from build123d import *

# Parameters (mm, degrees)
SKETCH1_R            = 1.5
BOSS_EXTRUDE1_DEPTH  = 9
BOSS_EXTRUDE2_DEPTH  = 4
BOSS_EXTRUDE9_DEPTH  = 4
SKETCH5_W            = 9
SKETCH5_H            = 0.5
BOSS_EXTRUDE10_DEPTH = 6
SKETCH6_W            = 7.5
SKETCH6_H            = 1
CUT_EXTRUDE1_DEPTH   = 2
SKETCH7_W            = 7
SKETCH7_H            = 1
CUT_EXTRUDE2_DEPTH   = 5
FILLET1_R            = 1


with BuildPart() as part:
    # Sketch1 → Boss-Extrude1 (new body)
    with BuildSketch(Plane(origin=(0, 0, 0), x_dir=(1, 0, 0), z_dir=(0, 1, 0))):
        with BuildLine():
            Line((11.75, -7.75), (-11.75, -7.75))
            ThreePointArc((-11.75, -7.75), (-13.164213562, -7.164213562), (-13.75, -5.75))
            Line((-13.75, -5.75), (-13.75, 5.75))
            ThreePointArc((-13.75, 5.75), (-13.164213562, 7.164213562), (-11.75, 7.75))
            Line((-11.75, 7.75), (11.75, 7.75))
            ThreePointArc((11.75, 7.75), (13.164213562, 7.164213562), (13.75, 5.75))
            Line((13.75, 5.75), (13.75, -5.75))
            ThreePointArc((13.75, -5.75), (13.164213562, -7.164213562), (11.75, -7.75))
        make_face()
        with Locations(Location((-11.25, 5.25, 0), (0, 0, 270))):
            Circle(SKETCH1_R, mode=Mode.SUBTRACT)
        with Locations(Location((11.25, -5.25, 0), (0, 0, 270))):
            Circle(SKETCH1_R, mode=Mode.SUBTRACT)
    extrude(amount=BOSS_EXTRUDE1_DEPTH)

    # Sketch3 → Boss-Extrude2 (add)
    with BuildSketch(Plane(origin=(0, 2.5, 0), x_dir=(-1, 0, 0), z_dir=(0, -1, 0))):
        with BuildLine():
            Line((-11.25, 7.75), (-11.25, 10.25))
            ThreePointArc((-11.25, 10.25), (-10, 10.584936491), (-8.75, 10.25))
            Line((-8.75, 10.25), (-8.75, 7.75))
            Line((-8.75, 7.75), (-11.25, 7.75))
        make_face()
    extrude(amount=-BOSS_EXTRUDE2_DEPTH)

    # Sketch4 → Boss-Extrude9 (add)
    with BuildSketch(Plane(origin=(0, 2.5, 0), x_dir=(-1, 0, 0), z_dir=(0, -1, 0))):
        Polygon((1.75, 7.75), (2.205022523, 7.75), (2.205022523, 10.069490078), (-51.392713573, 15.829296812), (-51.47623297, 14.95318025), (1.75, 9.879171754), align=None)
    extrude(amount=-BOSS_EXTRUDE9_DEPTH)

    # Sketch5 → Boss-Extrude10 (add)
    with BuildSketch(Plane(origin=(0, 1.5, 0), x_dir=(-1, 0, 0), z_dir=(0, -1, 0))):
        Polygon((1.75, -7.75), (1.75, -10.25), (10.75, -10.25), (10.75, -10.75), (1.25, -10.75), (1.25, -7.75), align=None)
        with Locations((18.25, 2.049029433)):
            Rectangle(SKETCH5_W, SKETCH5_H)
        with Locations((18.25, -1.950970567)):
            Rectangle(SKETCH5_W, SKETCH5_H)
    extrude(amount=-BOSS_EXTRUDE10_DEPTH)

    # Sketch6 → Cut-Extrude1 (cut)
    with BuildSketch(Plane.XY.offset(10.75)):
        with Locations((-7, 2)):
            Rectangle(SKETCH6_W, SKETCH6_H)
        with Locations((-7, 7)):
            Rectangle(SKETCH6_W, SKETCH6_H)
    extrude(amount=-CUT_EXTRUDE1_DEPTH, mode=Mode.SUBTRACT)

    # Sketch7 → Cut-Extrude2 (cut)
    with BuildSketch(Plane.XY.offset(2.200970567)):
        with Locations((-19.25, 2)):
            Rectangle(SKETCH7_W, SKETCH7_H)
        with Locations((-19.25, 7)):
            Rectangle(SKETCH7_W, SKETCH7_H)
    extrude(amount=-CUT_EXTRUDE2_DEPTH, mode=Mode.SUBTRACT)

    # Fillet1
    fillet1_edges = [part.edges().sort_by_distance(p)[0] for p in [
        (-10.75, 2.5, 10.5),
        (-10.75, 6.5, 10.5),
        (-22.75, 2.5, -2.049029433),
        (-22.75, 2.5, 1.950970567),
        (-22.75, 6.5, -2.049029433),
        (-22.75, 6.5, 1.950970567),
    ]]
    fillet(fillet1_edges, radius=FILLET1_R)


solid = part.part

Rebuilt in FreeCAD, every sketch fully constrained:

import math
import FreeCAD as App
import Part
import Sketcher
Q = App.Units.Quantity


def edges_at(feature, points):
    """Names of the edges that pass closest to the given points."""
    edges = feature.Shape.Edges
    near = lambda p: min(range(len(edges)), key=lambda i: edges[i].distToShape(Part.Vertex(*p))[0])
    return sorted({f"Edge{near(p) + 1}" for p in points})


def add_polygon(sketch, points):
    """Adds a closed chain of lines whose ends are joined by coincident constraints."""
    first, n = sketch.GeometryCount, len(points)
    for a, b in zip(points, points[1:] + points[:1]):
        sketch.addGeometry(Part.LineSegment(App.Vector(*a, 0), App.Vector(*b, 0)), False)
    for i in range(n):
        sketch.addConstraint(Sketcher.Constraint("Coincident", first + i, 2, first + (i + 1) % n, 1))

doc = App.newDocument("Part")
body = doc.addObject("PartDesign::Body", "Body")

# Sketch on XZ plane
sketch1 = doc.addObject("Sketcher::SketchObject", "Sketch")
body.addObject(sketch1)
sketch1.AttachmentSupport = (doc.XZ_Plane, [""])
sketch1.MapMode = "FlatFace"
sketch1.addGeometry(Part.LineSegment(App.Vector(-11.75, 7.75, 0), App.Vector(11.75, 7.75, 0)), False)
sketch1.addGeometry(Part.ArcOfCircle(Part.Circle(App.Vector(11.75, 5.75, 0), App.Vector(0, 0, 1), 2), math.radians(0), math.radians(90)), False)
sketch1.addGeometry(Part.LineSegment(App.Vector(13.75, 5.75, 0), App.Vector(13.75, -5.75, 0)), False)
sketch1.addGeometry(Part.ArcOfCircle(Part.Circle(App.Vector(11.75, -5.75, 0), App.Vector(0, 0, 1), 2), math.radians(-90), math.radians(0)), False)
sketch1.addGeometry(Part.LineSegment(App.Vector(11.75, -7.75, 0), App.Vector(-11.75, -7.75, 0)), False)
sketch1.addGeometry(Part.ArcOfCircle(Part.Circle(App.Vector(-11.75, -5.75, 0), App.Vector(0, 0, 1), 2), math.radians(-180), math.radians(-90)), False)
sketch1.addGeometry(Part.LineSegment(App.Vector(-13.75, -5.75, 0), App.Vector(-13.75, 5.75, 0)), False)
sketch1.addGeometry(Part.ArcOfCircle(Part.Circle(App.Vector(-11.75, 5.75, 0), App.Vector(0, 0, 1), 2), math.radians(90), math.radians(180)), False)
sketch1.addGeometry(Part.Circle(App.Vector(11.25, 5.25, 0), App.Vector(0, 0, 1), 1.5), False)
sketch1.addGeometry(Part.Circle(App.Vector(-11.25, -5.25, 0), App.Vector(0, 0, 1), 1.5), False)
sketch1.addConstraint(Sketcher.Constraint("Tangent", 0, 2, 1, 2))
sketch1.addConstraint(Sketcher.Constraint("Tangent", 1, 1, 2, 1))
sketch1.addConstraint(Sketcher.Constraint("Tangent", 2, 2, 3, 2))
sketch1.addConstraint(Sketcher.Constraint("Tangent", 3, 1, 4, 1))
sketch1.addConstraint(Sketcher.Constraint("Tangent", 4, 2, 5, 2))
sketch1.addConstraint(Sketcher.Constraint("Tangent", 5, 1, 6, 1))
sketch1.addConstraint(Sketcher.Constraint("Tangent", 6, 2, 7, 2))
sketch1.addConstraint(Sketcher.Constraint("Tangent", 7, 1, 0, 1))
sketch1.addConstraint(Sketcher.Constraint("Horizontal", 0))
sketch1.addConstraint(Sketcher.Constraint("Vertical", 2))
sketch1.addConstraint(Sketcher.Constraint("Horizontal", 4))
sketch1.addConstraint(Sketcher.Constraint("Vertical", 6))
sketch1.addConstraint(Sketcher.Constraint("Equal", 1, 3))
sketch1.addConstraint(Sketcher.Constraint("Equal", 3, 5))
sketch1.addConstraint(Sketcher.Constraint("Equal", 5, 7))
sketch1.addConstraint(Sketcher.Constraint("Equal", 8, 9))
sketch1.addConstraint(Sketcher.Constraint("Symmetric", 1, 3, 5, 3, -1, 1))
sketch1.addConstraint(Sketcher.Constraint("Symmetric", 8, 3, 9, 3, -1, 1))
sketch1.addConstraint(Sketcher.Constraint("Diameter", 8, Q("3 mm")))
sketch1.addConstraint(Sketcher.Constraint("Radius", 1, Q("2 mm")))
sketch1.addConstraint(Sketcher.Constraint("DistanceX", 0, 1, 0, 2, Q("23.5 mm")))
sketch1.addConstraint(Sketcher.Constraint("DistanceY", 2, 2, 2, 1, Q("11.5 mm")))
sketch1.addConstraint(Sketcher.Constraint("DistanceY", 3, 3, 8, 3, Q("11 mm")))
sketch1.addConstraint(Sketcher.Constraint("DistanceX", 7, 3, 8, 3, Q("23 mm")))
pad1 = doc.addObject("PartDesign::Pad", "Pad")
body.addObject(pad1)
pad1.Profile = sketch1
pad1.Length = 9
pad1.Reversed = True

# Sketch on XZ plane
sketch2 = doc.addObject("Sketcher::SketchObject", "Sketch001")
body.addObject(sketch2)
sketch2.AttachmentSupport = (doc.XZ_Plane, [""])
sketch2.MapMode = "FlatFace"
sketch2.AttachmentOffset = App.Placement(App.Vector(0, 0, -2.5), App.Rotation())
sketch2.addGeometry(Part.LineSegment(App.Vector(11.25, -10.25, 0), App.Vector(11.25, -7.75, 0)), False)
sketch2.addGeometry(Part.LineSegment(App.Vector(11.25, -7.75, 0), App.Vector(8.75, -7.75, 0)), False)
sketch2.addGeometry(Part.LineSegment(App.Vector(8.75, -7.75, 0), App.Vector(8.75, -10.25, 0)), False)
sketch2.addGeometry(Part.ArcOfCircle(Part.Circle(App.Vector(10, -8.084936, 0), App.Vector(0, 0, 1), 2.5), math.radians(-120), math.radians(-60)), False)
sketch2.addConstraint(Sketcher.Constraint("Coincident", 0, 2, 1, 1))
sketch2.addConstraint(Sketcher.Constraint("Coincident", 1, 2, 2, 1))
sketch2.addConstraint(Sketcher.Constraint("Coincident", 2, 2, 3, 1))
sketch2.addConstraint(Sketcher.Constraint("Coincident", 3, 2, 0, 1))
sketch2.addConstraint(Sketcher.Constraint("Vertical", 0))
sketch2.addConstraint(Sketcher.Constraint("Horizontal", 1))
sketch2.addConstraint(Sketcher.Constraint("Vertical", 2))
sketch2.addConstraint(Sketcher.Constraint("Horizontal", 2, 2, 3, 2))
sketch2.addConstraint(Sketcher.Constraint("Equal", 1, 0))
sketch2.addConstraint(Sketcher.Constraint("Radius", 3, Q("2.5 mm")))
sketch2.addConstraint(Sketcher.Constraint("DistanceX", 1, 2, 1, 1, Q("2.5 mm")))
sketch2.addConstraint(Sketcher.Constraint("DistanceX", -1, 1, 3, 3, Q("10 mm")))
sketch2.addConstraint(Sketcher.Constraint("DistanceY", 0, 2, -1, 1, Q("7.75 mm")))
pad2 = doc.addObject("PartDesign::Pad", "Pad001")
body.addObject(pad2)
pad2.Profile = sketch2
pad2.Length = 4
pad2.Reversed = True

# Sketch on XZ plane
sketch3 = doc.addObject("Sketcher::SketchObject", "Sketch002")
body.addObject(sketch3)
sketch3.AttachmentSupport = (doc.XZ_Plane, [""])
sketch3.MapMode = "FlatFace"
sketch3.AttachmentOffset = App.Placement(App.Vector(0, 0, -2.5), App.Rotation())
add_polygon(sketch3, [(-1.75, -7.75), (-2.205023, -7.75), (-2.205023, -10.06949), (51.392714, -15.829297), (51.476233, -14.95318), (-1.75, -9.879172)])  # lines 0-5
sketch3.addConstraint(Sketcher.Constraint("Horizontal", 0))
sketch3.addConstraint(Sketcher.Constraint("Vertical", 1))
sketch3.addConstraint(Sketcher.Constraint("Vertical", 5))
sketch3.addConstraint(Sketcher.Constraint("Perpendicular", 3, 4))
sketch3.addConstraint(Sketcher.Constraint("DistanceY", 0, 2, -1, 1, Q("7.75 mm")))
sketch3.addConstraint(Sketcher.Constraint("DistanceX", 4, 2, -1, 1, Q("1.75 mm")))
sketch3.addConstraint(Sketcher.Constraint("DistanceY", 1, 2, 1, 1, Q("2.31949 mm")))
sketch3.addConstraint(Sketcher.Constraint("DistanceY", 5, 1, 5, 2, Q("2.129172 mm")))
sketch3.addConstraint(Sketcher.Constraint("Distance", 3, Q("0.880088 mm")))
sketch3.addConstraint(Sketcher.Constraint("DistanceX", 0, 2, 0, 1, Q("0.455023 mm")))
sketch3.addConstraint(Sketcher.Constraint("DistanceY", 3, 2, -1, 1, Q("14.95318 mm")))
sketch3.addConstraint(Sketcher.Constraint("Distance", 2, Q("53.906333 mm")))
pad3 = doc.addObject("PartDesign::Pad", "Pad002")
body.addObject(pad3)
pad3.Profile = sketch3
pad3.Length = 4
pad3.Reversed = True

# Sketch on XZ plane
sketch4 = doc.addObject("Sketcher::SketchObject", "Sketch003")
body.addObject(sketch4)
sketch4.AttachmentSupport = (doc.XZ_Plane, [""])
sketch4.MapMode = "FlatFace"
sketch4.AttachmentOffset = App.Placement(App.Vector(0, 0, -1.5), App.Rotation())
add_polygon(sketch4, [(-1.75, 10.25), (-1.75, 7.75), (-1.25, 7.75), (-1.25, 10.75), (-10.75, 10.75), (-10.75, 10.25)])  # lines 0-5
add_polygon(sketch4, [(-13.75, -2.299029), (-13.75, -1.799029), (-22.75, -1.799029), (-22.75, -2.299029)])  # lines 6-9
add_polygon(sketch4, [(-13.75, 1.700971), (-13.75, 2.200971), (-22.75, 2.200971), (-22.75, 1.700971)])  # lines 10-13
sketch4.addConstraint(Sketcher.Constraint("Vertical", 0))
sketch4.addConstraint(Sketcher.Constraint("Horizontal", 1))
sketch4.addConstraint(Sketcher.Constraint("Vertical", 2))
sketch4.addConstraint(Sketcher.Constraint("Horizontal", 3))
sketch4.addConstraint(Sketcher.Constraint("Vertical", 4))
sketch4.addConstraint(Sketcher.Constraint("Horizontal", 5))
sketch4.addConstraint(Sketcher.Constraint("Vertical", 6))
sketch4.addConstraint(Sketcher.Constraint("Horizontal", 7))
sketch4.addConstraint(Sketcher.Constraint("Vertical", 8))
sketch4.addConstraint(Sketcher.Constraint("Horizontal", 9))
sketch4.addConstraint(Sketcher.Constraint("Vertical", 10))
sketch4.addConstraint(Sketcher.Constraint("Horizontal", 11))
sketch4.addConstraint(Sketcher.Constraint("Vertical", 12))
sketch4.addConstraint(Sketcher.Constraint("Horizontal", 13))
sketch4.addConstraint(Sketcher.Constraint("Vertical", 9, 2, 10, 2))
sketch4.addConstraint(Sketcher.Constraint("Vertical", 8, 2, 11, 2))
sketch4.addConstraint(Sketcher.Constraint("Equal", 5, 7))
sketch4.addConstraint(Sketcher.Constraint("Equal", 1, 4))
sketch4.addConstraint(Sketcher.Constraint("Equal", 4, 6))
sketch4.addConstraint(Sketcher.Constraint("Equal", 8, 10))
sketch4.addConstraint(Sketcher.Constraint("DistanceX", 5, 1, 5, 2, Q("9 mm")))
sketch4.addConstraint(Sketcher.Constraint("DistanceY", 2, 1, 2, 2, Q("3 mm")))
sketch4.addConstraint(Sketcher.Constraint("DistanceX", 1, 1, 1, 2, Q("0.5 mm")))
sketch4.addConstraint(Sketcher.Constraint("DistanceX", 6, 2, 4, 2, Q("3 mm")))
sketch4.addConstraint(Sketcher.Constraint("DistanceY", 6, 2, 10, 2, Q("4 mm")))
sketch4.addConstraint(Sketcher.Constraint("DistanceX", 0, 2, -1, 1, Q("1.75 mm")))
sketch4.addConstraint(Sketcher.Constraint("DistanceY", -1, 1, 0, 2, Q("7.75 mm")))
sketch4.addConstraint(Sketcher.Constraint("DistanceY", 6, 2, -1, 1, Q("1.799029 mm")))
pad4 = doc.addObject("PartDesign::Pad", "Pad003")
body.addObject(pad4)
pad4.Profile = sketch4
pad4.Length = 6
pad4.Reversed = True

# Sketch on XY plane
sketch5 = doc.addObject("Sketcher::SketchObject", "Sketch004")
body.addObject(sketch5)
sketch5.AttachmentSupport = (doc.XY_Plane, [""])
sketch5.MapMode = "FlatFace"
sketch5.AttachmentOffset = App.Placement(App.Vector(0, 0, 10.75), App.Rotation())
add_polygon(sketch5, [(-10.75, 2.5), (-10.75, 1.5), (-3.25, 1.5), (-3.25, 2.5)])  # lines 0-3
add_polygon(sketch5, [(-10.75, 7.5), (-10.75, 6.5), (-3.25, 6.5), (-3.25, 7.5)])  # lines 4-7
sketch5.addConstraint(Sketcher.Constraint("Vertical", 0))
sketch5.addConstraint(Sketcher.Constraint("Horizontal", 1))
sketch5.addConstraint(Sketcher.Constraint("Vertical", 2))
sketch5.addConstraint(Sketcher.Constraint("Horizontal", 3))
sketch5.addConstraint(Sketcher.Constraint("Vertical", 4))
sketch5.addConstraint(Sketcher.Constraint("Horizontal", 5))
sketch5.addConstraint(Sketcher.Constraint("Vertical", 6))
sketch5.addConstraint(Sketcher.Constraint("Horizontal", 7))
sketch5.addConstraint(Sketcher.Constraint("Vertical", 3, 2, 4, 2))
sketch5.addConstraint(Sketcher.Constraint("Vertical", 2, 2, 5, 2))
sketch5.addConstraint(Sketcher.Constraint("Equal", 2, 4))
sketch5.addConstraint(Sketcher.Constraint("DistanceY", 0, 2, 0, 1, Q("1 mm")))
sketch5.addConstraint(Sketcher.Constraint("DistanceX", 1, 1, 1, 2, Q("7.5 mm")))
sketch5.addConstraint(Sketcher.Constraint("DistanceY", 3, 2, 4, 2, Q("4 mm")))
sketch5.addConstraint(Sketcher.Constraint("DistanceY", -1, 1, 0, 2, Q("1.5 mm")))
sketch5.addConstraint(Sketcher.Constraint("DistanceX", 0, 2, -1, 1, Q("10.75 mm")))
pocket1 = doc.addObject("PartDesign::Pocket", "Pocket")
body.addObject(pocket1)
pocket1.Profile = sketch5
pocket1.Length = 2

# Sketch on XY plane
sketch6 = doc.addObject("Sketcher::SketchObject", "Sketch005")
body.addObject(sketch6)
sketch6.AttachmentSupport = (doc.XY_Plane, [""])
sketch6.MapMode = "FlatFace"
sketch6.AttachmentOffset = App.Placement(App.Vector(0, 0, 2.200971), App.Rotation())
add_polygon(sketch6, [(-22.75, 2.5), (-22.75, 1.5), (-15.75, 1.5), (-15.75, 2.5)])  # lines 0-3
add_polygon(sketch6, [(-22.75, 7.5), (-22.75, 6.5), (-15.75, 6.5), (-15.75, 7.5)])  # lines 4-7
sketch6.addConstraint(Sketcher.Constraint("Vertical", 0))
sketch6.addConstraint(Sketcher.Constraint("Horizontal", 1))
sketch6.addConstraint(Sketcher.Constraint("Vertical", 2))
sketch6.addConstraint(Sketcher.Constraint("Horizontal", 3))
sketch6.addConstraint(Sketcher.Constraint("Vertical", 4))
sketch6.addConstraint(Sketcher.Constraint("Horizontal", 5))
sketch6.addConstraint(Sketcher.Constraint("Vertical", 6))
sketch6.addConstraint(Sketcher.Constraint("Horizontal", 7))
sketch6.addConstraint(Sketcher.Constraint("Vertical", 3, 2, 4, 2))
sketch6.addConstraint(Sketcher.Constraint("Vertical", 2, 2, 5, 2))
sketch6.addConstraint(Sketcher.Constraint("Equal", 2, 4))
sketch6.addConstraint(Sketcher.Constraint("DistanceX", 1, 1, 1, 2, Q("7 mm")))
sketch6.addConstraint(Sketcher.Constraint("DistanceY", 0, 2, 0, 1, Q("1 mm")))
sketch6.addConstraint(Sketcher.Constraint("DistanceY", 3, 2, 4, 2, Q("4 mm")))
sketch6.addConstraint(Sketcher.Constraint("DistanceY", -1, 1, 0, 2, Q("1.5 mm")))
sketch6.addConstraint(Sketcher.Constraint("DistanceX", 0, 2, -1, 1, Q("22.75 mm")))
pocket2 = doc.addObject("PartDesign::Pocket", "Pocket001")
body.addObject(pocket2)
pocket2.Profile = sketch6
pocket2.Length = 5
doc.recompute()

fillet = doc.addObject("PartDesign::Fillet", "Fillet")
body.addObject(fillet)
fillet.Base = (pocket2, edges_at(pocket2, [
    (-10.75, 2.5, 10.5),
    (-10.75, 6.5, 10.5),
    (-22.75, 2.5, -2.049),
    (-22.75, 2.5, 1.951),
    (-22.75, 6.5, -2.049),
    (-22.75, 6.5, 1.951),
]))
fillet.Radius = 1

doc.recompute()
